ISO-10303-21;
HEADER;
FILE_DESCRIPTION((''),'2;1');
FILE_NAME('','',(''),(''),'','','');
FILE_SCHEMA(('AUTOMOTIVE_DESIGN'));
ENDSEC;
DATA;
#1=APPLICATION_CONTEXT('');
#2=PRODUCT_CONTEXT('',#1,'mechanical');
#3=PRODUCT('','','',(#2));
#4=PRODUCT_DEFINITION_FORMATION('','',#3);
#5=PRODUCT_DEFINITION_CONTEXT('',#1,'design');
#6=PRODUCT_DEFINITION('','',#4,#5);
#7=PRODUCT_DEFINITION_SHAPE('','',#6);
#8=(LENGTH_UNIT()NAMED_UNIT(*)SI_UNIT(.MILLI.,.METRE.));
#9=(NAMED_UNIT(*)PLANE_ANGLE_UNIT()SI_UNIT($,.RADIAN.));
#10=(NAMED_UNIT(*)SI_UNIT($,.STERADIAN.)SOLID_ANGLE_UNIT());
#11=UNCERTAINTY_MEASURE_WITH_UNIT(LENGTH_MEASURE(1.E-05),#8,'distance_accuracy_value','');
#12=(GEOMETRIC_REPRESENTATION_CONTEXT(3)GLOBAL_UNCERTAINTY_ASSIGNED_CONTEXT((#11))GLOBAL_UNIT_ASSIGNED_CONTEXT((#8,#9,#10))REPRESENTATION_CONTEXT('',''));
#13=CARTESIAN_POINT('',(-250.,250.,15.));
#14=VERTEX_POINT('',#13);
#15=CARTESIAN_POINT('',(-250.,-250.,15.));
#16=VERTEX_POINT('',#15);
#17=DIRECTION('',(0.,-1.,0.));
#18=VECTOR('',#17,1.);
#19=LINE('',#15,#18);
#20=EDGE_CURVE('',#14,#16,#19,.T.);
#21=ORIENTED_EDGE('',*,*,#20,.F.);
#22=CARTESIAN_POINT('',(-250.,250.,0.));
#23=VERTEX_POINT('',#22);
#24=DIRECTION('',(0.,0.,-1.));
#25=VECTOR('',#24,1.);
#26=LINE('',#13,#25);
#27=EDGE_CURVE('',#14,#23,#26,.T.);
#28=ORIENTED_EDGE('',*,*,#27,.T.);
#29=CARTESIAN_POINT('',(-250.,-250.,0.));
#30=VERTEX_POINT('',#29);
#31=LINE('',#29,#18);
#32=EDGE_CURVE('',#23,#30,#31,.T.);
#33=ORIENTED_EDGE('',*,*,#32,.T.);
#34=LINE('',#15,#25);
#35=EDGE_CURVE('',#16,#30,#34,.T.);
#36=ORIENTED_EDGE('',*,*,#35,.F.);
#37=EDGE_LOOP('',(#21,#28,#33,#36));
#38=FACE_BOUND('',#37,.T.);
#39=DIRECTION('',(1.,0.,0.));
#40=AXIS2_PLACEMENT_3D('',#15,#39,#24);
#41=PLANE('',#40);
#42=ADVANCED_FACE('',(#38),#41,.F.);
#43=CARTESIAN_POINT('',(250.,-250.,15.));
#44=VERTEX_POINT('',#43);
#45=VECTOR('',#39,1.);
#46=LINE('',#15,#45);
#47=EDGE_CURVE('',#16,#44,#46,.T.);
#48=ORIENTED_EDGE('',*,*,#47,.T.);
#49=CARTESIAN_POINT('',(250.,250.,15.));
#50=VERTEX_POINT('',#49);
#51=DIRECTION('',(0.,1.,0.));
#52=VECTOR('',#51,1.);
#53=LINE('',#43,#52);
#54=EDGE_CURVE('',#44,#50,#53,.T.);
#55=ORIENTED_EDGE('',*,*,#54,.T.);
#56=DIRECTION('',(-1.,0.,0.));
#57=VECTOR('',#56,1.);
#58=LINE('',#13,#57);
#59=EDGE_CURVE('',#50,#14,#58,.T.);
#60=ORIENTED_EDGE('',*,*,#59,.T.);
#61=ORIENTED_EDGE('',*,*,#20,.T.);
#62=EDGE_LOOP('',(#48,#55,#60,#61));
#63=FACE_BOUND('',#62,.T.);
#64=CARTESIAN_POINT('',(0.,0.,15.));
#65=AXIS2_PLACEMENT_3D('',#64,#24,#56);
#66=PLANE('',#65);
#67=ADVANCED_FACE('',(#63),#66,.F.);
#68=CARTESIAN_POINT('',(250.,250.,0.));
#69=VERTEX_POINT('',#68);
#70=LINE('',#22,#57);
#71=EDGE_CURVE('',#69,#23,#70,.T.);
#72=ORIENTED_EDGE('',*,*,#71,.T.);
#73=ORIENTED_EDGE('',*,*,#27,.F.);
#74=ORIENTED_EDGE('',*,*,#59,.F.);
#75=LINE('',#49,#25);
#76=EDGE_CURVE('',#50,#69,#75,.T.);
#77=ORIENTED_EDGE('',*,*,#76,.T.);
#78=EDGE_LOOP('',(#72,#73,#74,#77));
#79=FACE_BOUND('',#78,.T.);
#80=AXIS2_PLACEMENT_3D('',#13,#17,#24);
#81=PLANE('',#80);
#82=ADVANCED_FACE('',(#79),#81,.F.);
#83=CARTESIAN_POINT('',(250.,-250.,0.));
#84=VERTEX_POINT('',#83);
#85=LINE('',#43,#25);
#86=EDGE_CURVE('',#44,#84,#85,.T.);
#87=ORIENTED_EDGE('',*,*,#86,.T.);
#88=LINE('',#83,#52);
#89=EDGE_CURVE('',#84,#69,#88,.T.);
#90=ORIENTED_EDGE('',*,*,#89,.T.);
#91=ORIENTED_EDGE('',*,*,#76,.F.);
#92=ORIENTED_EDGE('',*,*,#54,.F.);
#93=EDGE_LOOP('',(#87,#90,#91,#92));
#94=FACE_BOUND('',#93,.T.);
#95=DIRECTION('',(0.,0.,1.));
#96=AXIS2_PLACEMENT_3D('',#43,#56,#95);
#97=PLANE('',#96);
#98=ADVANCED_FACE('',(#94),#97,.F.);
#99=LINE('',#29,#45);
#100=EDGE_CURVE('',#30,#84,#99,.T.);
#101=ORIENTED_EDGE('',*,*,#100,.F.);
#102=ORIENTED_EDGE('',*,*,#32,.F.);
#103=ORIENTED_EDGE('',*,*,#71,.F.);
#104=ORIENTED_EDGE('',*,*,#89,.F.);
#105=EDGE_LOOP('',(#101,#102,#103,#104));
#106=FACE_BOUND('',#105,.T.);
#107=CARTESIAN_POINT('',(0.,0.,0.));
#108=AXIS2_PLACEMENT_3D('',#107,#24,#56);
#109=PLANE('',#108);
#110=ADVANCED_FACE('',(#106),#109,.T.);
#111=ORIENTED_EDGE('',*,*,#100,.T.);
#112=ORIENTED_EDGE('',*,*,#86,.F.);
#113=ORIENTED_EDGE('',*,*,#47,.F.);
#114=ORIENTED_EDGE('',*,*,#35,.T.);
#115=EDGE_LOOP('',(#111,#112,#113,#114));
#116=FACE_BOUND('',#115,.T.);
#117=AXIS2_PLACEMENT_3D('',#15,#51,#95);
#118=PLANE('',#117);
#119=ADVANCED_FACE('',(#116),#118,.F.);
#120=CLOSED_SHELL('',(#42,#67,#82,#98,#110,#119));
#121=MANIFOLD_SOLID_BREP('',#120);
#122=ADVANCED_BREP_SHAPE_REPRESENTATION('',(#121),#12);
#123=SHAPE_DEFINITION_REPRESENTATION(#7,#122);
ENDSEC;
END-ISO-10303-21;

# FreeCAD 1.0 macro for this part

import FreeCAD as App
import Part
import Sketcher
from FreeCAD import Vector


def add_polygon(sketch, points):
    """Adds a closed chain of lines whose ends are joined by coincident constraints."""
    first, n = sketch.GeometryCount, len(points)
    for a, b in zip(points, points[1:] + points[:1]):
        sketch.addGeometry(Part.LineSegment(App.Vector(*a, 0), App.Vector(*b, 0)), False)
    for i in range(n):
        sketch.addConstraint(Sketcher.Constraint("Coincident", first + i, 2, first + (i + 1) % n, 1))

doc = App.newDocument("Part")
params = doc.addObject("Spreadsheet::Sheet", "Params")
for row, (alias, value) in enumerate([
    ("sketch1_width", "500 mm"),
    ("pad1_length", "15 mm"),
], start=1):
    params.set(f"A{row}", alias)
    params.set(f"B{row}", "=" + value)
    params.setAlias(f"B{row}", alias)

body = doc.addObject("PartDesign::Body", "Body")

# Sketch on XY plane
sketch1 = body.newObject("Sketcher::SketchObject", "Sketch")
sketch1.AttachmentSupport = (doc.getObject("XY_Plane"), [""])
sketch1.MapMode = "FlatFace"
add_polygon(sketch1, [(-250, 250), (-250, -250), (250, -250), (250, 250)])  # lines 0-3
sketch1.addConstraint(Sketcher.Constraint("Vertical", 0))
sketch1.addConstraint(Sketcher.Constraint("Horizontal", 1))
sketch1.addConstraint(Sketcher.Constraint("Vertical", 2))
sketch1.addConstraint(Sketcher.Constraint("Horizontal", 3))
sketch1.addConstraint(Sketcher.Constraint("Symmetric", 0, 2, 2, 2, -1, 1))
sketch1.addConstraint(Sketcher.Constraint("Equal", 3, 0))
sketch1.addConstraint(Sketcher.Constraint("DistanceX", 1, 1, 1, 2, 500.0))
sketch1.setExpression("Constraints[10]", "Params.sketch1_width")
pad1 = body.newObject("PartDesign::Pad", "Pad")
pad1.Profile = sketch1
pad1.setExpression("Length", "Params.pad1_length")

doc.recompute()
